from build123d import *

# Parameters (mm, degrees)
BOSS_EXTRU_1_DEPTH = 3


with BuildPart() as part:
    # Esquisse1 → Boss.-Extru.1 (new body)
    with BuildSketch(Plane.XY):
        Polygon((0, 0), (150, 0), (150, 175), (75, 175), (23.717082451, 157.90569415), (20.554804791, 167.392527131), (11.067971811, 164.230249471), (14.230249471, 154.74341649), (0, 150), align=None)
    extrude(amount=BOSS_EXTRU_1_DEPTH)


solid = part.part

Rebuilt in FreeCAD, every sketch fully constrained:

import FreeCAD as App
import Part
import Sketcher
from FreeCAD import Vector

doc = App.newDocument("Part")
body = doc.addObject("PartDesign::Body", "Body")

sketch1 = doc.addObject("Sketcher::SketchObject", "Sketch")
body.addObject(sketch1)
sketch1.AttachmentSupport = (doc.XY_Plane, [""])
sketch1.MapMode = "FlatFace"
sketch1.addGeometry(Part.LineSegment(Vector(0, 0, 0), Vector(150, 0, 0)), False)
sketch1.addGeometry(Part.LineSegment(Vector(150, 0, 0), Vector(150, 175, 0)), False)
sketch1.addGeometry(Part.LineSegment(Vector(150, 175, 0), Vector(75, 175, 0)), False)
sketch1.addGeometry(Part.LineSegment(Vector(75, 175, 0), Vector(23.717082, 157.905694, 0)), False)
sketch1.addGeometry(Part.LineSegment(Vector(23.717082, 157.905694, 0), Vector(20.554805, 167.392527, 0)), False)
sketch1.addGeometry(Part.LineSegment(Vector(20.554805, 167.392527, 0), Vector(11.067972, 164.230249, 0)), False)
sketch1.addGeometry(Part.LineSegment(Vector(11.067972, 164.230249, 0), Vector(14.230249, 154.743416, 0)), False)
sketch1.addGeometry(Part.LineSegment(Vector(14.230249, 154.743416, 0), Vector(0, 150, 0)), False)
sketch1.addGeometry(Part.LineSegment(Vector(0, 150, 0), Vector(0, 0, 0)), False)
sketch1.addConstraint(Sketcher.Constraint("Coincident", 0, 2, 1, 1))
sketch1.addConstraint(Sketcher.Constraint("Coincident", 1, 2, 2, 1))
sketch1.addConstraint(Sketcher.Constraint("Coincident", 2, 2, 3, 1))
sketch1.addConstraint(Sketcher.Constraint("Coincident", 3, 2, 4, 1))
sketch1.addConstraint(Sketcher.Constraint("Coincident", 4, 2, 5, 1))
sketch1.addConstraint(Sketcher.Constraint("Coincident", 5, 2, 6, 1))
sketch1.addConstraint(Sketcher.Constraint("Coincident", 6, 2, 7, 1))
sketch1.addConstraint(Sketcher.Constraint("Coincident", 7, 2, 8, 1))
sketch1.addConstraint(Sketcher.Constraint("Coincident", 8, 2, 0, 1))
sketch1.addConstraint(Sketcher.Constraint("Horizontal", 0))
sketch1.addConstraint(Sketcher.Constraint("Vertical", 1))
sketch1.addConstraint(Sketcher.Constraint("Horizontal", 2))
sketch1.addConstraint(Sketcher.Constraint("Vertical", 8))
sketch1.addConstraint(Sketcher.Constraint("Coincident", 8, 2, -1, 1))
sketch1.addConstraint(Sketcher.Constraint("Perpendicular", 3, 4))
sketch1.addConstraint(Sketcher.Constraint("Perpendicular", 4, 5))
sketch1.addConstraint(Sketcher.Constraint("Perpendicular", 5, 6))
sketch1.addConstraint(Sketcher.Constraint("Perpendicular", 6, 7))
sketch1.addConstraint(Sketcher.Constraint("Equal", 0, 8))
sketch1.addConstraint(Sketcher.Constraint("Equal", 4, 5))
sketch1.addConstraint(Sketcher.Constraint("Equal", 5, 6))
sketch1.addConstraint(Sketcher.Constraint("DistanceX", 0, 1, 0, 2, 150.0))
sketch1.addConstraint(Sketcher.Constraint("DistanceX", 2, 2, 2, 1, 75.0))
sketch1.addConstraint(Sketcher.Constraint("DistanceY", 1, 1, 1, 2, 175.0))
sketch1.addConstraint(Sketcher.Constraint("Distance", 4, 10.0))
sketch1.addConstraint(Sketcher.Constraint("Distance", 7, 15.0))
pad1 = doc.addObject("PartDesign::Pad", "Pad")
body.addObject(pad1)
pad1.Profile = sketch1
pad1.Length = 3

doc.recompute()
